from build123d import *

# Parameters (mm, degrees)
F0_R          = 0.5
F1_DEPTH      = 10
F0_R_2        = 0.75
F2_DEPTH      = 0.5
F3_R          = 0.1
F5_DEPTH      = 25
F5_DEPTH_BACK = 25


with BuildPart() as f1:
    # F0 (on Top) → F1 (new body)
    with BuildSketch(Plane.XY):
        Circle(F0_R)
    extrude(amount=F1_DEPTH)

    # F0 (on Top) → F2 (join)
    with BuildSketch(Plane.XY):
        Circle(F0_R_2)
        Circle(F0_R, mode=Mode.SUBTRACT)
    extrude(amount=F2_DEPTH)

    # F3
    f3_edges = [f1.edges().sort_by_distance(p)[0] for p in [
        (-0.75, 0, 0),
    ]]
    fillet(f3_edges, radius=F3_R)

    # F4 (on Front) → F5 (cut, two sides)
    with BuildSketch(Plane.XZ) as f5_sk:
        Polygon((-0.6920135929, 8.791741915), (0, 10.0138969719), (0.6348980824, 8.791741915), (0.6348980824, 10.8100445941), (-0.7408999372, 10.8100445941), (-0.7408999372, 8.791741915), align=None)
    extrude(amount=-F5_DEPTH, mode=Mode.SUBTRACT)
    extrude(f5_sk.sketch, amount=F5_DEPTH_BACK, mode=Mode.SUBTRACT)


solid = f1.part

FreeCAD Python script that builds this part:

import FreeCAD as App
import Part
import Sketcher

V = App.Vector
Q = App.Units.Quantity


def edges_at(feature, points):
    """Names of the edges that pass closest to the given points."""
    edges = feature.Shape.Edges
    near = lambda p: min(range(len(edges)), key=lambda i: edges[i].distToShape(Part.Vertex(*p))[0])
    return sorted({f"Edge{near(p) + 1}" for p in points})

doc = App.newDocument("Part")
body = doc.addObject("PartDesign::Body", "Body")

# Sketch on XY plane
sketch1 = body.newObject("Sketcher::SketchObject", "Sketch")
sketch1.AttachmentSupport = (doc.getObject("XY_Plane"), [""])
sketch1.MapMode = "FlatFace"
sketch1.addGeometry(Part.Circle(V(0, 0, 0), V(0, 0, 1), 0.5), False)
sketch1.addConstraint([
    Sketcher.Constraint("Coincident", 0, 3, -1, 1),
    Sketcher.Constraint("Diameter", 0, Q("1 mm")),
])
pad1 = body.newObject("PartDesign::Pad", "Pad")
pad1.Profile = sketch1
pad1.Length = 10

# Sketch on XY plane
sketch2 = body.newObject("Sketcher::SketchObject", "Sketch001")
sketch2.AttachmentSupport = (doc.getObject("XY_Plane"), [""])
sketch2.MapMode = "FlatFace"
sketch2.addGeometry([
    Part.Circle(V(0, 0, 0), V(0, 0, 1), 0.8),
    Part.Circle(V(0, 0, 0), V(0, 0, 1), 0.5),
], False)
sketch2.addConstraint([
    Sketcher.Constraint("Coincident", 0, 3, -1, 1),
    Sketcher.Constraint("Coincident", 1, 3, -1, 1),
    Sketcher.Constraint("Diameter", 1, Q("1 mm")),
    Sketcher.Constraint("Diameter", 0, Q("1.5 mm")),
])
pad2 = body.newObject("PartDesign::Pad", "Pad001")
pad2.Profile = sketch2
pad2.Length = 0.5
doc.recompute()

fillet = body.newObject("PartDesign::Fillet", "Fillet")
fillet.Base = (pad2, edges_at(pad2, [(-0.75, 0, 0)]))
fillet.Radius = 0.1

# Sketch on XZ plane
sketch3 = body.newObject("Sketcher::SketchObject", "Sketch002")
sketch3.AttachmentSupport = (doc.getObject("XZ_Plane"), [""])
sketch3.MapMode = "FlatFace"
sketch3.addGeometry([
    Part.LineSegment(V(-0.692, 8.792, 0), V(0, 10.014, 0)),  # 0
    Part.LineSegment(V(0, 10.014, 0), V(0.635, 8.792, 0)),  # 1
    Part.LineSegment(V(0.635, 8.792, 0), V(0.635, 10.81, 0)),  # 2
    Part.LineSegment(V(0.635, 10.81, 0), V(-0.741, 10.81, 0)),  # 3
    Part.LineSegment(V(-0.741, 10.81, 0), V(-0.741, 8.792, 0)),  # 4
    Part.LineSegment(V(-0.741, 8.792, 0), V(-0.692, 8.792, 0)),  # 5
], False)
sketch3.addConstraint([
    Sketcher.Constraint("Coincident", 0, 2, 1, 1),
    Sketcher.Constraint("Coincident", 1, 2, 2, 1),
    Sketcher.Constraint("Coincident", 2, 2, 3, 1),
    Sketcher.Constraint("Coincident", 3, 2, 4, 1),
    Sketcher.Constraint("Coincident", 4, 2, 5, 1),
    Sketcher.Constraint("Coincident", 5, 2, 0, 1),
    Sketcher.Constraint("Vertical", 2),
    Sketcher.Constraint("Horizontal", 3),
    Sketcher.Constraint("Vertical", 4),
    Sketcher.Constraint("Horizontal", 5),
    Sketcher.Constraint("PointOnObject", 0, 2, -2),
    Sketcher.Constraint("Horizontal", 1, 2, 4, 2),
    Sketcher.Constraint("DistanceX", 3, 2, 3, 1, Q("1.375798 mm")),
    Sketcher.Constraint("DistanceX", -1, 1, 1, 2, Q("0.634898 mm")),
    Sketcher.Constraint("Distance", 1, Q("1.377229 mm")),
    Sketcher.Constraint("DistanceX", 5, 1, 5, 2, Q("0.048886 mm")),
    Sketcher.Constraint("DistanceY", 2, 1, 2, 2, Q("2.018303 mm")),
    Sketcher.Constraint("DistanceY", -1, 1, 1, 2, Q("8.791742 mm")),
])
pocket1 = body.newObject("PartDesign::Pocket", "Pocket")
pocket1.Profile = sketch3
pocket1.Type = "ThroughAll"
pocket1.Midplane = True

doc.recompute()
